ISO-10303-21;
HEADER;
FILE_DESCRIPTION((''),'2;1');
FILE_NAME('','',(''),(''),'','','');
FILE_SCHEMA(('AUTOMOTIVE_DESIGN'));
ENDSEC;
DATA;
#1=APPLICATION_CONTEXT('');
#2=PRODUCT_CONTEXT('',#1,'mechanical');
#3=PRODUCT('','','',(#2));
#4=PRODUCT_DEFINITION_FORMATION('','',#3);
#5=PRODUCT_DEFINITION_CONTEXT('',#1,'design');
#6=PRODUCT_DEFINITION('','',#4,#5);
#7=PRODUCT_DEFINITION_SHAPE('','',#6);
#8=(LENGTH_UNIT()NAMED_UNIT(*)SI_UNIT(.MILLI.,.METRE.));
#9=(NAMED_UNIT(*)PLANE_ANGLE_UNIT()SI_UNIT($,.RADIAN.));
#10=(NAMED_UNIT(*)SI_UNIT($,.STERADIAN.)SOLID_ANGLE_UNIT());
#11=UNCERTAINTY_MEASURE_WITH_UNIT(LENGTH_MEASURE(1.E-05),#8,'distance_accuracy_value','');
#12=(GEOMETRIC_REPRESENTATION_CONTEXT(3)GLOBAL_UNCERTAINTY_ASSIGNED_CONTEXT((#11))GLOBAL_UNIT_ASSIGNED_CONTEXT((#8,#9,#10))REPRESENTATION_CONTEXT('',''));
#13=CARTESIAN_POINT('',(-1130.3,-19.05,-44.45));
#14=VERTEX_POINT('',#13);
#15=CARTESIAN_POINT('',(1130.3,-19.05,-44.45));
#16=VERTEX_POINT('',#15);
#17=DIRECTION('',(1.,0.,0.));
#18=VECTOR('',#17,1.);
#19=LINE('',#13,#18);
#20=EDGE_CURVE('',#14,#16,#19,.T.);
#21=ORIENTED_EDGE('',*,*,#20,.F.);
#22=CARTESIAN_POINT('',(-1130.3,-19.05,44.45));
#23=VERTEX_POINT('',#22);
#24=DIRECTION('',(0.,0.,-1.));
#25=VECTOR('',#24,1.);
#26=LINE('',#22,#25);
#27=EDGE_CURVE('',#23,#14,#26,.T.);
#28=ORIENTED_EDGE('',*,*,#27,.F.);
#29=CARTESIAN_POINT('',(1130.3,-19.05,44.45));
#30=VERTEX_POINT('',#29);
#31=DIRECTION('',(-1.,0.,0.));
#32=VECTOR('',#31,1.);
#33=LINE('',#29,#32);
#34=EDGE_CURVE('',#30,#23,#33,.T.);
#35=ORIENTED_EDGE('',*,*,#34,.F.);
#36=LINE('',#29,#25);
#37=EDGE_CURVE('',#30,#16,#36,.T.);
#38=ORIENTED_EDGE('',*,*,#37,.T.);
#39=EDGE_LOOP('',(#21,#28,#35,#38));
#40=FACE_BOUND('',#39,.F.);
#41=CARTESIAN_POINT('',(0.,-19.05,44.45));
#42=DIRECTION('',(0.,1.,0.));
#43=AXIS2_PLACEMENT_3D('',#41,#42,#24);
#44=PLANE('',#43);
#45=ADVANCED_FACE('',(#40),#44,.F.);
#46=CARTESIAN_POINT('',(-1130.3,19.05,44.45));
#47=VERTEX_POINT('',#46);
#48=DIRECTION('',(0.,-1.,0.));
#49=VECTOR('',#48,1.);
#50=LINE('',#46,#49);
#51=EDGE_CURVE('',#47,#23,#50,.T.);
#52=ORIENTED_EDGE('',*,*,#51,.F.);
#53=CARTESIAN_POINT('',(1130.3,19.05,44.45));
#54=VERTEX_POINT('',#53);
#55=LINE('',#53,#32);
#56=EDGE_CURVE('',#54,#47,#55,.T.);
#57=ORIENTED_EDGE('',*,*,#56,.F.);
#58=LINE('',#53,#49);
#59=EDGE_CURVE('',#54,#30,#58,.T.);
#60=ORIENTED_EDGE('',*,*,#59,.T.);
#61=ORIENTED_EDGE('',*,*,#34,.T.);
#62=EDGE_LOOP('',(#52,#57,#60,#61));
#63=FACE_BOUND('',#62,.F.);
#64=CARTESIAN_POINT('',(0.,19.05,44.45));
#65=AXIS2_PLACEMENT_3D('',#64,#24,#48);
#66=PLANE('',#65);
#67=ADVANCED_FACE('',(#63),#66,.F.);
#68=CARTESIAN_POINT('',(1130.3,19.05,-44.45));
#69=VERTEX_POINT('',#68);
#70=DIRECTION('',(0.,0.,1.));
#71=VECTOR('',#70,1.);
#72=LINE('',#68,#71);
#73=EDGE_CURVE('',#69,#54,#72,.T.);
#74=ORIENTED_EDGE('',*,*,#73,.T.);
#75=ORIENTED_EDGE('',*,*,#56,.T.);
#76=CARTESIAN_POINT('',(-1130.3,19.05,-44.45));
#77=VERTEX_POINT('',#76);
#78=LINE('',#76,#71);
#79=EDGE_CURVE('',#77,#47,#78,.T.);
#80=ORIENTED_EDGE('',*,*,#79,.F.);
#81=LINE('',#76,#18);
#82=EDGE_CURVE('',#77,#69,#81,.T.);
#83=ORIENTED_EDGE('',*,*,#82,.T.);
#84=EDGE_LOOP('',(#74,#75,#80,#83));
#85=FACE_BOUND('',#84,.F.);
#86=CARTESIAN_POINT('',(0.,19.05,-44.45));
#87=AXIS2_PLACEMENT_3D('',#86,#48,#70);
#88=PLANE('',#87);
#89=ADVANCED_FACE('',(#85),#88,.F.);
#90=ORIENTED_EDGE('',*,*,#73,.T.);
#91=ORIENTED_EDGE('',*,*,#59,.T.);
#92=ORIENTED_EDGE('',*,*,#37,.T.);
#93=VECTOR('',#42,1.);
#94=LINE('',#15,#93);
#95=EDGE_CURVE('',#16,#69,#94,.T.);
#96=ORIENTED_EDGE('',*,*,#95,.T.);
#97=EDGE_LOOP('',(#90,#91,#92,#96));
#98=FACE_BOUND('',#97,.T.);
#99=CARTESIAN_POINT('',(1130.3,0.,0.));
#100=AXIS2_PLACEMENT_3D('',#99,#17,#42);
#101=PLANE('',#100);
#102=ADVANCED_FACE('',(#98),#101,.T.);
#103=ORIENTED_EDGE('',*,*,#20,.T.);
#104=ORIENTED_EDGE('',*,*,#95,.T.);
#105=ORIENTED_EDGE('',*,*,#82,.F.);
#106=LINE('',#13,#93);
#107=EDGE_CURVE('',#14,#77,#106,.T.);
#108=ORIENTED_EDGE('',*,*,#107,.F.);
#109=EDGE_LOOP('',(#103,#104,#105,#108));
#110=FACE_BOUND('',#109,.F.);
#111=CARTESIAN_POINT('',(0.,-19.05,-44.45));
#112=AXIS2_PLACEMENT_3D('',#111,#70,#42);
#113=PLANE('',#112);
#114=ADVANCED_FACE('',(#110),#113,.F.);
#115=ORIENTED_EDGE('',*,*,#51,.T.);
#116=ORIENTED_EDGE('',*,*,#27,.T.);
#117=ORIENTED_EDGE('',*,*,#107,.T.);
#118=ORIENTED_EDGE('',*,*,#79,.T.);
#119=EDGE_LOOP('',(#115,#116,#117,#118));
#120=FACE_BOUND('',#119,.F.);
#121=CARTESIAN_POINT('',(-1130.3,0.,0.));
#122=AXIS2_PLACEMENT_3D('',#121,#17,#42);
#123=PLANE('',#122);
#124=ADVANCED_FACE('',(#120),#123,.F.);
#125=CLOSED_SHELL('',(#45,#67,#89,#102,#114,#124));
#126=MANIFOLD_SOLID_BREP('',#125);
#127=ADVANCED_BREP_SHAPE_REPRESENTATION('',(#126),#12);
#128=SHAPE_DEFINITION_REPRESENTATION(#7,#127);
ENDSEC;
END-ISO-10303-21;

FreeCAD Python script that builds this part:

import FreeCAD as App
import Part
import Sketcher
Q = App.Units.Quantity


def add_polygon(sketch, points):
    """Adds a closed chain of lines whose ends are joined by coincident constraints."""
    first, n = sketch.GeometryCount, len(points)
    for a, b in zip(points, points[1:] + points[:1]):
        sketch.addGeometry(Part.LineSegment(App.Vector(*a, 0), App.Vector(*b, 0)), False)
    for i in range(n):
        sketch.addConstraint(Sketcher.Constraint("Coincident", first + i, 2, first + (i + 1) % n, 1))

doc = App.newDocument("Part")
params = doc.addObject("Spreadsheet::Sheet", "Params")
for row, (alias, value) in enumerate([
    ("sketch1_width", "1.5 in"),
    ("sketch1_height", "3.5 in"),
    ("pad1_length", "89 in"),
], start=1):
    params.set(f"A{row}", alias)
    params.set(f"B{row}", "=" + value)
    params.setAlias(f"B{row}", alias)

body = doc.addObject("PartDesign::Body", "Body")

sketch1 = body.newObject("Sketcher::SketchObject", "Sketch")
sketch1.AttachmentSupport = (doc.getObject("YZ_Plane"), [""])
sketch1.MapMode = "FlatFace"
add_polygon(sketch1, [(-19, 44), (-19, -44), (19, -44), (19, 44)])
sketch1.addConstraint([
    Sketcher.Constraint("Vertical", 0),
    Sketcher.Constraint("Horizontal", 1),
    Sketcher.Constraint("Vertical", 2),
    Sketcher.Constraint("Horizontal", 3),
    Sketcher.Constraint("Symmetric", 0, 2, 2, 2, -1, 1),
    Sketcher.Constraint("DistanceX", 1, 1, 1, 2, Q("1.5 in")),
    Sketcher.Constraint("DistanceY", 0, 2, 0, 1, Q("3.5 in")),
])
sketch1.setExpression("Constraints[9]", "Params.sketch1_width")
sketch1.setExpression("Constraints[10]", "Params.sketch1_height")
pad1 = body.newObject("PartDesign::Pad", "Pad")
pad1.Profile = sketch1
pad1.setExpression("Length", "Params.pad1_length")
pad1.Midplane = True

doc.recompute()
